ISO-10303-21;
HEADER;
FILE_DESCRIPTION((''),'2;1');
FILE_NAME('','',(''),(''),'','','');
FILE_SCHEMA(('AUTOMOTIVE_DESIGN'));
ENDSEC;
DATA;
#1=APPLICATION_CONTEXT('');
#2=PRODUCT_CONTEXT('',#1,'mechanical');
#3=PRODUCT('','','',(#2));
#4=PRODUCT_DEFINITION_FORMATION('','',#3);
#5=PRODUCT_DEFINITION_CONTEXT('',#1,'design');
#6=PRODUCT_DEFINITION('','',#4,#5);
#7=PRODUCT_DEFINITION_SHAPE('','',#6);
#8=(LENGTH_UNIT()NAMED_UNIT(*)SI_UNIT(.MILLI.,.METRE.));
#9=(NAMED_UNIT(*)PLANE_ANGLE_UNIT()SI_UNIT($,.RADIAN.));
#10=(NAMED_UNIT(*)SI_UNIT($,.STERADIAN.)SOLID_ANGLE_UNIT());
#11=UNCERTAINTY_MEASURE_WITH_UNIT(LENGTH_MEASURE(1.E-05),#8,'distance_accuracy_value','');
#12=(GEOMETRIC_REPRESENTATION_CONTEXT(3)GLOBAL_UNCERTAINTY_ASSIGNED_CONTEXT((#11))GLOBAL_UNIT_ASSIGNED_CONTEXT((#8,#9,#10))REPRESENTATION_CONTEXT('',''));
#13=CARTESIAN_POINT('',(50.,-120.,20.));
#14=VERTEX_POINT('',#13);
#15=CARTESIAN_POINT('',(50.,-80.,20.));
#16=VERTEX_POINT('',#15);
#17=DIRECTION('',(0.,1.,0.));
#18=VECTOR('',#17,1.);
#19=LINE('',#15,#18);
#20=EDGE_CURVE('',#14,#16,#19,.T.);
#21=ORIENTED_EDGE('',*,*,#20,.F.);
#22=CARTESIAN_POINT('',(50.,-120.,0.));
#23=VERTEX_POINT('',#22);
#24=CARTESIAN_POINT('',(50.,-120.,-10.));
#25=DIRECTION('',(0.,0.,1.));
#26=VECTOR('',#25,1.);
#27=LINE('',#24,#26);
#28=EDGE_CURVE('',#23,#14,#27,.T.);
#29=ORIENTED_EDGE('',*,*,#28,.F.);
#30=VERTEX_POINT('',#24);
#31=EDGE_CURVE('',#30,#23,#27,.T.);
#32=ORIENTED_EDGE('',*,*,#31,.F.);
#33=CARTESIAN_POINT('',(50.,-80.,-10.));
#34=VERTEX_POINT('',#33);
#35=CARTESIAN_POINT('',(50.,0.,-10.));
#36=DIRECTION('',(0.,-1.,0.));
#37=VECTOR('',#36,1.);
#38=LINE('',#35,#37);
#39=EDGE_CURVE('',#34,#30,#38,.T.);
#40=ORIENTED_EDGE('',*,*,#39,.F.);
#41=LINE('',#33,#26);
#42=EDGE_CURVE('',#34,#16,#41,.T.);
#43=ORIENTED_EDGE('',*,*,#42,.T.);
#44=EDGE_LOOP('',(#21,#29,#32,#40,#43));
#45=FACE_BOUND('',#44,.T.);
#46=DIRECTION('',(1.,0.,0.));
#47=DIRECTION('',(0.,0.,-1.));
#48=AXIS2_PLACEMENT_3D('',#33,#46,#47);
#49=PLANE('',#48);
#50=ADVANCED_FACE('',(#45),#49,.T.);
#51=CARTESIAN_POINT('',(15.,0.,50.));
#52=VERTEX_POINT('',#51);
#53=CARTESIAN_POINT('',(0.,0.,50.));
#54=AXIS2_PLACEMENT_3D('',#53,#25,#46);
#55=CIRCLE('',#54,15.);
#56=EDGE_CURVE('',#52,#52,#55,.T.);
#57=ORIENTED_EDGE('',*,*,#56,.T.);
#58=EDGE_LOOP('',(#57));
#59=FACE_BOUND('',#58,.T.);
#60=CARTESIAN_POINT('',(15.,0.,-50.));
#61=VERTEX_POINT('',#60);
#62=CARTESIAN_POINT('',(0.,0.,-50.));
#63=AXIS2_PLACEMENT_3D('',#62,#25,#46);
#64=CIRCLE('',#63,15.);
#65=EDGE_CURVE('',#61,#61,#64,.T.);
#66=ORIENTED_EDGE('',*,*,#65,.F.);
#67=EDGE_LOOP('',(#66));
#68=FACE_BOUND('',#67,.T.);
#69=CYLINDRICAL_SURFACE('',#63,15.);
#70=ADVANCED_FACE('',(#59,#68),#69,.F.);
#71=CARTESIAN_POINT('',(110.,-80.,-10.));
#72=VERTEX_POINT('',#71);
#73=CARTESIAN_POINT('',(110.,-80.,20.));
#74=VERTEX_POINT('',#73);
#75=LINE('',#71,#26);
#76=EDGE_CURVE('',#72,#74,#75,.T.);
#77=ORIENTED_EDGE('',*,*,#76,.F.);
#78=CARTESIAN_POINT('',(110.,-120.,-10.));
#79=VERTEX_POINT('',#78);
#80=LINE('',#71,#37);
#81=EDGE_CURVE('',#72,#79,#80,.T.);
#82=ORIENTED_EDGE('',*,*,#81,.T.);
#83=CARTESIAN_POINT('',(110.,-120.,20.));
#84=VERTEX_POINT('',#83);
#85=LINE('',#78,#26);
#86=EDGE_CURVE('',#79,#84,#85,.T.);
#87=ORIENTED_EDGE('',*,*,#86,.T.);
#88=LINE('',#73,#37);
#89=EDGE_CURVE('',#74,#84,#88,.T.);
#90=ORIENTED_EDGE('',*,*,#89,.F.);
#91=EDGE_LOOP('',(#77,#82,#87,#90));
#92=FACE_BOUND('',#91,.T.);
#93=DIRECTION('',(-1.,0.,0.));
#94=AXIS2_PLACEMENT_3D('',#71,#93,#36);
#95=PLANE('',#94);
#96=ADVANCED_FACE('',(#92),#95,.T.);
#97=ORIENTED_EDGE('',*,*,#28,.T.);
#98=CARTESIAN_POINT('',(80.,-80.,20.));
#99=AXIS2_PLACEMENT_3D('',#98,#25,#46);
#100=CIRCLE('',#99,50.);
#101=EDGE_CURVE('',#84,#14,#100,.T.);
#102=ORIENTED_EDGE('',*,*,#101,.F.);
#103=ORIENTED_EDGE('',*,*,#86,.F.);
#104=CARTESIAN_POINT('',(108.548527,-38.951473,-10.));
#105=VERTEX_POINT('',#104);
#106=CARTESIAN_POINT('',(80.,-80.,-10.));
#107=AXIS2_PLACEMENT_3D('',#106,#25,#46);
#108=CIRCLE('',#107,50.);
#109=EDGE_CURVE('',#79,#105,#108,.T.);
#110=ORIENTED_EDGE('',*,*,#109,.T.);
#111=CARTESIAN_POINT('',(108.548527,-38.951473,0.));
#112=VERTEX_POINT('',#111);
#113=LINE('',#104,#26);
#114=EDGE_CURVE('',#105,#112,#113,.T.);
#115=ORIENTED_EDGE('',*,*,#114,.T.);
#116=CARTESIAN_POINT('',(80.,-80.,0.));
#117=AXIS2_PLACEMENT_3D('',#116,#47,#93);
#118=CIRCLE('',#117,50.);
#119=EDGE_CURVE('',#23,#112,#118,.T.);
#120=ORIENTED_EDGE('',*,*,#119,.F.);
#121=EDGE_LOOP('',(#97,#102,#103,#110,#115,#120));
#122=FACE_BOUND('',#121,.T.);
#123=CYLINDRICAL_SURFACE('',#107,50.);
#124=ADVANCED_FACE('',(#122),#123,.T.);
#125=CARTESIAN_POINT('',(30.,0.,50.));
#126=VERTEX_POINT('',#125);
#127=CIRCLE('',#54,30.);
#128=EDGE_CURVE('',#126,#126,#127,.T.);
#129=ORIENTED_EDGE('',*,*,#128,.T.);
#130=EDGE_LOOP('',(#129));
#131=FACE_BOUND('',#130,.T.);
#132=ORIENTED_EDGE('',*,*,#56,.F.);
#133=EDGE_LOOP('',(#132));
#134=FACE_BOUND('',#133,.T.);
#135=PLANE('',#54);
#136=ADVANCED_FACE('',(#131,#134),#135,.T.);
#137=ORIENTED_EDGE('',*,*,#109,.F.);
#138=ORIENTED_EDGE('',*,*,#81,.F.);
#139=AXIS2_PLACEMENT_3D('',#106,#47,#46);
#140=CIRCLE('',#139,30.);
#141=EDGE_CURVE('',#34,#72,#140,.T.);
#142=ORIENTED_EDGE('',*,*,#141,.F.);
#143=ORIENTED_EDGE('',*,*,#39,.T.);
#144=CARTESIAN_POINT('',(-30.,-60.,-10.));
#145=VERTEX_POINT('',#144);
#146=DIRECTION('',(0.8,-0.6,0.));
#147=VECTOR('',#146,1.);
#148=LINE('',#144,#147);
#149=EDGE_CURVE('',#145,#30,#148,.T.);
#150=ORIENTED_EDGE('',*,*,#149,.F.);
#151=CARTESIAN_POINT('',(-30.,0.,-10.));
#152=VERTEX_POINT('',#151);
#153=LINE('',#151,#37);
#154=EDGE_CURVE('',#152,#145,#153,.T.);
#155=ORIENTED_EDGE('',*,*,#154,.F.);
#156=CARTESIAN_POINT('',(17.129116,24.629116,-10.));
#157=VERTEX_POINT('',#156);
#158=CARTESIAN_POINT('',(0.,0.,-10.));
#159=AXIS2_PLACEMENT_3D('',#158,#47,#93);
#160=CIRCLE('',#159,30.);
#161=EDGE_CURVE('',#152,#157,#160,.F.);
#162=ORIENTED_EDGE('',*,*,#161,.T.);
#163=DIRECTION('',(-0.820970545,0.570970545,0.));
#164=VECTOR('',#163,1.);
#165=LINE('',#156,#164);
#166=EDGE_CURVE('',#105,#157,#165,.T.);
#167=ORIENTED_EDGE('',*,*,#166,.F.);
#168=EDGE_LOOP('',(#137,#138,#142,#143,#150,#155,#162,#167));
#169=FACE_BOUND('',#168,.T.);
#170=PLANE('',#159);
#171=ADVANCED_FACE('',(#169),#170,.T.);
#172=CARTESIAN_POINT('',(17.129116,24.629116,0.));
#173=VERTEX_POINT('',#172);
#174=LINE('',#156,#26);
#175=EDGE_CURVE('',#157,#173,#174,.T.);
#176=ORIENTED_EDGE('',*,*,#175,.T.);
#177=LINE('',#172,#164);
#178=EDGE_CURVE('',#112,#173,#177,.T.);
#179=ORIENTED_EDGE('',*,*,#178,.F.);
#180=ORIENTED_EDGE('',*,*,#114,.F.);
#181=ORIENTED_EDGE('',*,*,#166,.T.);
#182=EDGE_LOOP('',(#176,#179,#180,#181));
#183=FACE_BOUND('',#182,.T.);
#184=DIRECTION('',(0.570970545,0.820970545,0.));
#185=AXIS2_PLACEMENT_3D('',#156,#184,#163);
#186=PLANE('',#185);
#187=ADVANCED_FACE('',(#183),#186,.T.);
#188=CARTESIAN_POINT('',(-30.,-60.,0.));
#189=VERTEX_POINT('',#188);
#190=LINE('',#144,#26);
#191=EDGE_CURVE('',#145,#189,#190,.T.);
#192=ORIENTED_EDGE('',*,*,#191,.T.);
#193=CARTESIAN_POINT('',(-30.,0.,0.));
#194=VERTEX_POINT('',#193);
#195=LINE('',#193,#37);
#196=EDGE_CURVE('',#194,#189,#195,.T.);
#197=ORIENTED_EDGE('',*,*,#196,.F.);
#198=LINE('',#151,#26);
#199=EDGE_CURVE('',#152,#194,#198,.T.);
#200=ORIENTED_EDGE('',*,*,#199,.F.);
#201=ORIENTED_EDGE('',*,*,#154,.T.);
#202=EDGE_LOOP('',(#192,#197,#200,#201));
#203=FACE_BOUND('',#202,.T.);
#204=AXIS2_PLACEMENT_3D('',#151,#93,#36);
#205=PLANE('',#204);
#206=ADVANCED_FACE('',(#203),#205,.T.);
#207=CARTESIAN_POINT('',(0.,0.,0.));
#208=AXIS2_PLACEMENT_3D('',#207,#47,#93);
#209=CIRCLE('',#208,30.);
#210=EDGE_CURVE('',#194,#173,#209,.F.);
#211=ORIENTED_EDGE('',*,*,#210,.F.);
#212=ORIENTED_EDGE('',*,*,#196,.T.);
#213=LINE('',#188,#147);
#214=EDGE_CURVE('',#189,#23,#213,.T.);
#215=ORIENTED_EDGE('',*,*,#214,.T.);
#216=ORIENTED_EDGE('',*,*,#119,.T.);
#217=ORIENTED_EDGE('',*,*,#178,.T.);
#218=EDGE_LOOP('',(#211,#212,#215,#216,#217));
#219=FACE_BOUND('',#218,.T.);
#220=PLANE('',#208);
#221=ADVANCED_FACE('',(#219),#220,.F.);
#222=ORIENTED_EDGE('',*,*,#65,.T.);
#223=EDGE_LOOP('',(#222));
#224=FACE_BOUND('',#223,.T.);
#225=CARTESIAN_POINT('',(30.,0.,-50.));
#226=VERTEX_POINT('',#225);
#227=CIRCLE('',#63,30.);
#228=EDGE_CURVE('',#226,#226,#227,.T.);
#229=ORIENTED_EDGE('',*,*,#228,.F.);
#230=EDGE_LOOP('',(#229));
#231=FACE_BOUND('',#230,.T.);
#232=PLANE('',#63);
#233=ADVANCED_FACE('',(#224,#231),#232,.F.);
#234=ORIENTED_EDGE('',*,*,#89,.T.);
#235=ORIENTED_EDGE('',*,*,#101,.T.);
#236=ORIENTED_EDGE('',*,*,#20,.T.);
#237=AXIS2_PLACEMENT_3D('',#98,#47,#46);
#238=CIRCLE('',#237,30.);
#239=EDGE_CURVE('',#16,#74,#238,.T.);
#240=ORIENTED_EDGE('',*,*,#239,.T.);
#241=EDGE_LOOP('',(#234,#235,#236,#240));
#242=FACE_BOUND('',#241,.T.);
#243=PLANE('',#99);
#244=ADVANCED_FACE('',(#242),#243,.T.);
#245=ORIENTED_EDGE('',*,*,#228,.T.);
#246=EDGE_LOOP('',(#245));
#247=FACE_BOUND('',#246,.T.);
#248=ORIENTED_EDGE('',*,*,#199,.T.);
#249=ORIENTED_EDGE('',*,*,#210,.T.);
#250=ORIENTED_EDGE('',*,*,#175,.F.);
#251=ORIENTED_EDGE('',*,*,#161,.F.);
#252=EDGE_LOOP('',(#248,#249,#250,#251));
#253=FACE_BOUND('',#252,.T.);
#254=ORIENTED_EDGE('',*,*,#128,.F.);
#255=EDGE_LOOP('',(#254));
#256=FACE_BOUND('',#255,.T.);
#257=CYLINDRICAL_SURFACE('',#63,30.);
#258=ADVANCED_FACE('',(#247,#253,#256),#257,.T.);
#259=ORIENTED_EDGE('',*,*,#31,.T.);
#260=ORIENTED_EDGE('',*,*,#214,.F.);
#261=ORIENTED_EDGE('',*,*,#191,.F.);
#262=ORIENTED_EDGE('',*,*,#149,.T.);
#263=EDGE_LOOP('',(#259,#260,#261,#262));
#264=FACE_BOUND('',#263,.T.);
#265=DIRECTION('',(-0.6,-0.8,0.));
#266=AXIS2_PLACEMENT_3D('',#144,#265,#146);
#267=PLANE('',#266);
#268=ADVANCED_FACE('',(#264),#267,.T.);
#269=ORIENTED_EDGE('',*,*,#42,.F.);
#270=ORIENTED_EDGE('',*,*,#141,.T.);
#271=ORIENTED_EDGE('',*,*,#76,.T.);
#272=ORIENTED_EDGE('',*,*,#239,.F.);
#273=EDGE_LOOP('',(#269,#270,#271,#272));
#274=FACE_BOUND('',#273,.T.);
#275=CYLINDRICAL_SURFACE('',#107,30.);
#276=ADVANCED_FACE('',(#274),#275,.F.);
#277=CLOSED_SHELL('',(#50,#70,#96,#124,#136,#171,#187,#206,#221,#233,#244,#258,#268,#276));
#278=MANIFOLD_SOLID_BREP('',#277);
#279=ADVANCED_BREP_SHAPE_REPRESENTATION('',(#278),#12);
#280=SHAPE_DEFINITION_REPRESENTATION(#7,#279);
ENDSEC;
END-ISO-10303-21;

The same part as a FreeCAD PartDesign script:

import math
import FreeCAD as App
import Part
import Sketcher

V = App.Vector
Q = App.Units.Quantity


def add_polygon(sketch, points):
    """Adds a closed chain of lines whose ends are joined by coincident constraints."""
    first, n = sketch.GeometryCount, len(points)
    for a, b in zip(points, points[1:] + points[:1]):
        sketch.addGeometry(Part.LineSegment(App.Vector(*a, 0), App.Vector(*b, 0)), False)
    for i in range(n):
        sketch.addConstraint(Sketcher.Constraint("Coincident", first + i, 2, first + (i + 1) % n, 1))

doc = App.newDocument("Part")
body = doc.addObject("PartDesign::Body", "Body")

# Sketch on XY plane
sketch1 = doc.addObject("Sketcher::SketchObject", "Sketch")
body.addObject(sketch1)
sketch1.AttachmentSupport = (doc.XY_Plane, [""])
sketch1.MapMode = "FlatFace"
sketch1.addGeometry([
    Part.Circle(V(0, 0, 0), V(0, 0, 1), 30),
    Part.Circle(V(0, 0, 0), V(0, 0, 1), 15),
], False)
sketch1.addConstraint([
    Sketcher.Constraint("Coincident", 0, 3, -1, 1),
    Sketcher.Constraint("Coincident", 1, 3, -1, 1),
    Sketcher.Constraint("Diameter", 0, Q("60 mm")),
    Sketcher.Constraint("Diameter", 1, Q("30 mm")),
])
pad1 = doc.addObject("PartDesign::Pad", "Pad")
body.addObject(pad1)
pad1.Profile = sketch1
pad1.Type = "TwoLengths"
pad1.Length = 50
pad1.Length2 = 50
body2 = doc.addObject("PartDesign::Body", "Body001")

# Sketch on XY plane
sketch2 = doc.addObject("Sketcher::SketchObject", "Sketch001")
body2.addObject(sketch2)
sketch2.AttachmentSupport = (doc.getObject("XY_Plane001"), [""])
sketch2.MapMode = "FlatFace"
sketch2.addGeometry([
    Part.LineSegment(V(110, -80, 0), V(110, -120, 0)),
    Part.ArcOfCircle(Part.Circle(V(80, -80, 0), V(0, 0, 1), 50), math.radians(-53.130102), math.radians(233.130102)),
    Part.LineSegment(V(50, -120, 0), V(50, -80, 0)),
    Part.ArcOfCircle(Part.Circle(V(80, -80, 0), V(0, 0, 1), 30), math.radians(0), math.radians(180)),
], False)
sketch2.addConstraint([
    Sketcher.Constraint("Coincident", 0, 2, 1, 1),
    Sketcher.Constraint("Coincident", 1, 2, 2, 1),
    Sketcher.Constraint("Tangent", 2, 2, 3, 2),
    Sketcher.Constraint("Tangent", 3, 1, 0, 1),
    Sketcher.Constraint("Vertical", 0),
    Sketcher.Constraint("Vertical", 2),
    Sketcher.Constraint("Coincident", 3, 3, 1, 3),
    Sketcher.Constraint("Radius", 1, Q("50 mm")),
    Sketcher.Constraint("Radius", 3, Q("30 mm")),
    Sketcher.Constraint("DistanceX", -1, 1, 1, 3, Q("80 mm")),
    Sketcher.Constraint("DistanceY", 1, 3, -1, 1, Q("80 mm")),
])
pad2 = doc.addObject("PartDesign::Pad", "Pad001")
body2.addObject(pad2)
pad2.Profile = sketch2
pad2.Type = "TwoLengths"
pad2.Length = 20
pad2.Length2 = 10
body.AllowCompound = True
doc.recompute()

boolean = doc.addObject("PartDesign::Boolean", "Boolean")
body.addObject(boolean)
boolean.Type = "Fuse"
boolean.addObjects([body2])

# Sketch on XY plane
sketch3 = doc.addObject("Sketcher::SketchObject", "Sketch002")
body.addObject(sketch3)
sketch3.AttachmentSupport = (doc.XY_Plane, [""])
sketch3.MapMode = "FlatFace"
add_polygon(sketch3, [(108.548527, -38.951473), (17.129116, 24.629116), (-30, 0), (-30, -60), (50, -120)])  # lines 0-4
sketch3.addConstraint([
    Sketcher.Constraint("Vertical", 2),
    Sketcher.Constraint("PointOnObject", 1, 2, -1),
    Sketcher.Constraint("DistanceY", 2, 2, 2, 1, Q("60 mm")),
    Sketcher.Constraint("Distance", 3, Q("100 mm")),
    Sketcher.Constraint("DistanceX", 1, 2, -1, 1, Q("30 mm")),
    Sketcher.Constraint("DistanceX", -1, 1, 3, 2, Q("50 mm")),
    Sketcher.Constraint("DistanceX", 0, 2, 4, 2, Q("91.419411 mm")),
    Sketcher.Constraint("DistanceY", 4, 2, 0, 2, Q("63.580589 mm")),
    Sketcher.Constraint("Distance", 1, Q("53.176564 mm")),
    Sketcher.Constraint("Distance", 4, Q("99.983968 mm")),
])
pad3 = doc.addObject("PartDesign::Pad", "Pad002")
body.addObject(pad3)
pad3.Profile = sketch3
pad3.Length = 10
pad3.Reversed = True

# Sketch on XY plane
sketch4 = doc.addObject("Sketcher::SketchObject", "Sketch003")
body.addObject(sketch4)
sketch4.AttachmentSupport = (doc.XY_Plane, [""])
sketch4.MapMode = "FlatFace"
sketch4.addGeometry([
    Part.Circle(V(0, 0, 0), V(0, 0, 1), 15),  # 0
    Part.LineSegment(V(50, -80, 0), V(50, -120, 0)),  # 1
    Part.LineSegment(V(50, -120, 0), V(110, -120, 0)),  # 2
    Part.LineSegment(V(110, -120, 0), V(110, -80, 0)),  # 3
    Part.ArcOfCircle(Part.Circle(V(80, -80, 0), V(0, 0, 1), 30), math.radians(0), math.radians(180)),  # 4
], False)
sketch4.addConstraint([
    Sketcher.Constraint("Coincident", 1, 2, 2, 1),
    Sketcher.Constraint("Coincident", 2, 2, 3, 1),
    Sketcher.Constraint("Tangent", 3, 2, 4, 1),
    Sketcher.Constraint("Tangent", 4, 2, 1, 1),
    Sketcher.Constraint("Vertical", 1),
    Sketcher.Constraint("Horizontal", 2),
    Sketcher.Constraint("Vertical", 3),
    Sketcher.Constraint("Coincident", 0, 3, -1, 1),
    Sketcher.Constraint("Diameter", 0, Q("30 mm")),
    Sketcher.Constraint("Radius", 4, Q("30 mm")),
    Sketcher.Constraint("DistanceY", 1, 2, 1, 1, Q("40 mm")),
    Sketcher.Constraint("DistanceX", -1, 1, 4, 3, Q("80 mm")),
    Sketcher.Constraint("DistanceY", 4, 3, -1, 1, Q("80 mm")),
])
pocket1 = doc.addObject("PartDesign::Pocket", "Pocket")
body.addObject(pocket1)
pocket1.Profile = sketch4
pocket1.Type = "ThroughAll"
pocket1.Midplane = True

doc.recompute()
